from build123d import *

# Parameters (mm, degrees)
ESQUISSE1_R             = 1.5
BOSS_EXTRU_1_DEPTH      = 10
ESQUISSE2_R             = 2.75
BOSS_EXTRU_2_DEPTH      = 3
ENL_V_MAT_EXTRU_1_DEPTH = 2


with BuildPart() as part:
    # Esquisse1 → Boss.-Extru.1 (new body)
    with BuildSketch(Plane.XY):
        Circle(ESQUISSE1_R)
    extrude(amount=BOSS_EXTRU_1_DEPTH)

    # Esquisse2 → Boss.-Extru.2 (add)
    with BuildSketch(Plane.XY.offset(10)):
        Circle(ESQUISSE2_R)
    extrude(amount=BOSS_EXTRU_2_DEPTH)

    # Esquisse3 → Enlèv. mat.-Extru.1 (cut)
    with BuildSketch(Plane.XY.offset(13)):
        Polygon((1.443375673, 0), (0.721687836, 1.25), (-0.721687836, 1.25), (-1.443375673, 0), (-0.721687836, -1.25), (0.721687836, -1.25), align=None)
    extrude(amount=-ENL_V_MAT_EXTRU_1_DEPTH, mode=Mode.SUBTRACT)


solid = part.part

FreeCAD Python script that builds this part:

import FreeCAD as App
import Part
import Sketcher
Q = App.Units.Quantity

doc = App.newDocument("Part")
body = doc.addObject("PartDesign::Body", "Body")

# Sketch on XY plane
sketch1 = body.newObject("Sketcher::SketchObject", "Sketch")
sketch1.AttachmentSupport = (doc.getObject("XY_Plane"), [""])
sketch1.MapMode = "FlatFace"
sketch1.addGeometry(Part.Circle(App.Vector(0, 0, 0), App.Vector(0, 0, 1), 1.5), False)
sketch1.addConstraint(Sketcher.Constraint("Coincident", 0, 3, -1, 1))
sketch1.addConstraint(Sketcher.Constraint("Diameter", 0, 3.0))
pad1 = body.newObject("PartDesign::Pad", "Pad")
pad1.Profile = sketch1
pad1.Length = 10

# Sketch on XY plane
sketch2 = body.newObject("Sketcher::SketchObject", "Sketch001")
sketch2.AttachmentSupport = (doc.getObject("XY_Plane"), [""])
sketch2.MapMode = "FlatFace"
sketch2.AttachmentOffset = App.Placement(App.Vector(0, 0, 10), App.Rotation())
sketch2.addGeometry(Part.Circle(App.Vector(0, 0, 0), App.Vector(0, 0, 1), 2.8), False)
sketch2.addConstraint(Sketcher.Constraint("Coincident", 0, 3, -1, 1))
sketch2.addConstraint(Sketcher.Constraint("Diameter", 0, 5.5))
pad2 = body.newObject("PartDesign::Pad", "Pad001")
pad2.Profile = sketch2
pad2.Length = 3

# Sketch on XY plane
sketch3 = body.newObject("Sketcher::SketchObject", "Sketch002")
sketch3.AttachmentSupport = (doc.getObject("XY_Plane"), [""])
sketch3.MapMode = "FlatFace"
sketch3.AttachmentOffset = App.Placement(App.Vector(0, 0, 13), App.Rotation())
sketch3.addGeometry(Part.LineSegment(App.Vector(1.4, 0, 0), App.Vector(0.7, 1.2, 0)), False)
sketch3.addGeometry(Part.LineSegment(App.Vector(0.7, 1.2, 0), App.Vector(-0.7, 1.2, 0)), False)
sketch3.addGeometry(Part.LineSegment(App.Vector(-0.7, 1.2, 0), App.Vector(-1.4, 0, 0)), False)
sketch3.addGeometry(Part.LineSegment(App.Vector(-1.4, 0, 0), App.Vector(-0.7, -1.2, 0)), False)
sketch3.addGeometry(Part.LineSegment(App.Vector(-0.7, -1.2, 0), App.Vector(0.7, -1.2, 0)), False)
sketch3.addGeometry(Part.LineSegment(App.Vector(0.7, -1.2, 0), App.Vector(1.4, 0, 0)), False)
sketch3.addConstraint(Sketcher.Constraint("Coincident", 0, 2, 1, 1))
sketch3.addConstraint(Sketcher.Constraint("Coincident", 1, 2, 2, 1))
sketch3.addConstraint(Sketcher.Constraint("Coincident", 2, 2, 3, 1))
sketch3.addConstraint(Sketcher.Constraint("Coincident", 3, 2, 4, 1))
sketch3.addConstraint(Sketcher.Constraint("Coincident", 4, 2, 5, 1))
sketch3.addConstraint(Sketcher.Constraint("Coincident", 5, 2, 0, 1))
sketch3.addConstraint(Sketcher.Constraint("Horizontal", 1))
sketch3.addConstraint(Sketcher.Constraint("Horizontal", 4))
sketch3.addConstraint(Sketcher.Constraint("Symmetric", 0, 2, 3, 2, -1, 1))
sketch3.addConstraint(Sketcher.Constraint("Symmetric", 2, 2, 5, 2, -1, 1))
sketch3.addConstraint(Sketcher.Constraint("PointOnObject", 2, 2, -1))
sketch3.addConstraint(Sketcher.Constraint("Parallel", 2, 5))
sketch3.addConstraint(Sketcher.Constraint("Vertical", 1, 2, 3, 2))
sketch3.addConstraint(Sketcher.Constraint("Angle", 0, Q("120 deg")))
sketch3.addConstraint(Sketcher.Constraint("DistanceY", 3, 2, 1, 2, 2.5))
sketch3.addConstraint(Sketcher.Constraint("DistanceX", 1, 2, 1, 1, 1.443376))
pocket1 = body.newObject("PartDesign::Pocket", "Pocket")
pocket1.Profile = sketch3
pocket1.Length = 2

doc.recompute()
